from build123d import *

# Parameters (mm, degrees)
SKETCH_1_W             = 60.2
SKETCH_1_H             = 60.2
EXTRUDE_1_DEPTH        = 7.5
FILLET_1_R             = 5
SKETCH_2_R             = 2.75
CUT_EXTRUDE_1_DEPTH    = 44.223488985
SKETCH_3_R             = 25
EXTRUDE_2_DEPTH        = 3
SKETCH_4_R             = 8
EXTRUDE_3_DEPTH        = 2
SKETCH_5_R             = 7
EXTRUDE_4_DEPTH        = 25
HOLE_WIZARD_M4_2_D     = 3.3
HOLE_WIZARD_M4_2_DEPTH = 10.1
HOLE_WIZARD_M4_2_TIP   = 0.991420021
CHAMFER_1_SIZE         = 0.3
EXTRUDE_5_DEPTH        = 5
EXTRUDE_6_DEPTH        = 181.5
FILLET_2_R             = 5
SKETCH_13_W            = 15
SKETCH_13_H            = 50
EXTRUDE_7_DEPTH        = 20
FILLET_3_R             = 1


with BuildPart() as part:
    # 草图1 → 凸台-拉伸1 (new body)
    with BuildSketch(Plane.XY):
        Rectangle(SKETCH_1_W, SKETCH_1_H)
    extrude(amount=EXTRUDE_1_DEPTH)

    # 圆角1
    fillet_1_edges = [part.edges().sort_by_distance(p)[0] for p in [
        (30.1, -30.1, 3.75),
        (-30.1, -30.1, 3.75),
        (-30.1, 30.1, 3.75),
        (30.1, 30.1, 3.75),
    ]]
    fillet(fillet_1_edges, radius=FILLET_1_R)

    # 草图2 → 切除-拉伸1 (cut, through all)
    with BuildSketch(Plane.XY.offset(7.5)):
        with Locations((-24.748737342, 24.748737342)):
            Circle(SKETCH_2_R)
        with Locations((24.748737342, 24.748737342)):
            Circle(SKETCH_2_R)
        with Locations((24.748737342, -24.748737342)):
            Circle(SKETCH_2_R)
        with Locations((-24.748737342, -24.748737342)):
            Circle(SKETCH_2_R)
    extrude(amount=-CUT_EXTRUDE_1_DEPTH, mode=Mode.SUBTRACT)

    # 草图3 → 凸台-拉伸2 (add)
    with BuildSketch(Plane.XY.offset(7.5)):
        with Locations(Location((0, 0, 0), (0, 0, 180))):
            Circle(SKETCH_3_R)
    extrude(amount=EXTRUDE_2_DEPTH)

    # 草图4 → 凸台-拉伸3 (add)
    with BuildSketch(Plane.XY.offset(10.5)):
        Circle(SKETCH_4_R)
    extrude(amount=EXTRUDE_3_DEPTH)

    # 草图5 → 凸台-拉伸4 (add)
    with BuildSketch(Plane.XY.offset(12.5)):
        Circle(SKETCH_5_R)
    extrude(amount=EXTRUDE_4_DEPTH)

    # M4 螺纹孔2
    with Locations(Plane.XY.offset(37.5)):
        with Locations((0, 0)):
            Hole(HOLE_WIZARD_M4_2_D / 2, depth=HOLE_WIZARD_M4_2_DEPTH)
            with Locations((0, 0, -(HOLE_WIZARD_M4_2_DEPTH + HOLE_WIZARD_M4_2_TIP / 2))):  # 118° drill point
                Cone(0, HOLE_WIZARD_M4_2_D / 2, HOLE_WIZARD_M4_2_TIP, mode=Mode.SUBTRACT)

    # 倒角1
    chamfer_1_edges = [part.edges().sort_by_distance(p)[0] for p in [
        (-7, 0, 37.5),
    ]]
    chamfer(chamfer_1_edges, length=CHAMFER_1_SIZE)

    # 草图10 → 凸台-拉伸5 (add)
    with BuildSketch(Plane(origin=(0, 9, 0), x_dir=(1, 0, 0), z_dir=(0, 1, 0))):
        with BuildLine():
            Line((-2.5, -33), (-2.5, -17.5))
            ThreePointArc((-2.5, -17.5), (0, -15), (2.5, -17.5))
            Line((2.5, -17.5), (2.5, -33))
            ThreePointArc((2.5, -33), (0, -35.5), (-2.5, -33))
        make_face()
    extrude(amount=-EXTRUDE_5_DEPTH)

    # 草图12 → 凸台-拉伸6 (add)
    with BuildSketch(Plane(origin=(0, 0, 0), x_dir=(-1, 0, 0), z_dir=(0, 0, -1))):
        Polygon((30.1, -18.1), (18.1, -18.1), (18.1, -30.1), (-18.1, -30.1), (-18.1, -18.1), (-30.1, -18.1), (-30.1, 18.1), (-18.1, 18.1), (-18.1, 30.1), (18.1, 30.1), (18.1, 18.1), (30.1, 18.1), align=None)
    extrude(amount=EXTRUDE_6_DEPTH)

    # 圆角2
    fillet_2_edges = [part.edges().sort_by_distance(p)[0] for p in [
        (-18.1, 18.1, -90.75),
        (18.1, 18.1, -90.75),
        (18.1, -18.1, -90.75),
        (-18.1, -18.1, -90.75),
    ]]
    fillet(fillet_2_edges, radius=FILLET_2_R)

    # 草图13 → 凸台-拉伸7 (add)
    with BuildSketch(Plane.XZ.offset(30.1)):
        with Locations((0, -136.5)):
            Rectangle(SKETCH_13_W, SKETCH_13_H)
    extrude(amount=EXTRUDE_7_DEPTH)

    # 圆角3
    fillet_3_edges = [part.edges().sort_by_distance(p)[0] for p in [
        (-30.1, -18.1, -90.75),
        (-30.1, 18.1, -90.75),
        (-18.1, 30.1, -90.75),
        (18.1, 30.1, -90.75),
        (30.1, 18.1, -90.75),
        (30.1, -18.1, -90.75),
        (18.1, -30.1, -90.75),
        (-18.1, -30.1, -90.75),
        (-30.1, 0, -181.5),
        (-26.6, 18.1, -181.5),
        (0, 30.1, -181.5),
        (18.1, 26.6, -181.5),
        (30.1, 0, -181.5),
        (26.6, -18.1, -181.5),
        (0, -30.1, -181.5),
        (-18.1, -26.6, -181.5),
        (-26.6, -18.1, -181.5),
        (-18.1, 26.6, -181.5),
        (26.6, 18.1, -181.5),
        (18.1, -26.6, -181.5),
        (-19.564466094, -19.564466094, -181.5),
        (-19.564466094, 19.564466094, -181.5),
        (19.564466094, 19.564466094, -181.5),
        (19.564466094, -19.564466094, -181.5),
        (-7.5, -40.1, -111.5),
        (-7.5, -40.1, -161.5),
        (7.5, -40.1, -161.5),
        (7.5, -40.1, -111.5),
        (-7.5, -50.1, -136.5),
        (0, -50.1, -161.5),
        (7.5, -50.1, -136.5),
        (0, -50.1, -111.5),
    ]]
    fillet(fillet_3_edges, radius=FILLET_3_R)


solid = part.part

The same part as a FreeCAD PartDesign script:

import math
import FreeCAD as App
import Part
import Sketcher

V = App.Vector
Q = App.Units.Quantity


def edges_at(feature, points):
    """Names of the edges that pass closest to the given points."""
    edges = feature.Shape.Edges
    near = lambda p: min(range(len(edges)), key=lambda i: edges[i].distToShape(Part.Vertex(*p))[0])
    return sorted({f"Edge{near(p) + 1}" for p in points})


def add_polygon(sketch, points):
    """Adds a closed chain of lines whose ends are joined by coincident constraints."""
    first, n = sketch.GeometryCount, len(points)
    for a, b in zip(points, points[1:] + points[:1]):
        sketch.addGeometry(Part.LineSegment(App.Vector(*a, 0), App.Vector(*b, 0)), False)
    for i in range(n):
        sketch.addConstraint(Sketcher.Constraint("Coincident", first + i, 2, first + (i + 1) % n, 1))

doc = App.newDocument("Part")
body = doc.addObject("PartDesign::Body", "Body")

sketch1 = body.newObject("Sketcher::SketchObject", "Sketch")
sketch1.AttachmentSupport = (doc.getObject("XY_Plane"), [""])
sketch1.MapMode = "FlatFace"
add_polygon(sketch1, [(-30.1, 30.1), (-30.1, -30.1), (30.1, -30.1), (30.1, 30.1)])
sketch1.addConstraint([
    Sketcher.Constraint("Vertical", 0),
    Sketcher.Constraint("Horizontal", 1),
    Sketcher.Constraint("Vertical", 2),
    Sketcher.Constraint("Horizontal", 3),
    Sketcher.Constraint("Symmetric", 0, 2, 2, 2, -1, 1),
    Sketcher.Constraint("Equal", 3, 0),
    Sketcher.Constraint("DistanceX", 1, 1, 1, 2, Q("60.2 mm")),
])
pad1 = body.newObject("PartDesign::Pad", "Pad")
pad1.Profile = sketch1
pad1.Length = 7.5
doc.recompute()

fillet = body.newObject("PartDesign::Fillet", "Fillet")
fillet.Base = (pad1, edges_at(pad1, [
    (30.1, -30.1, 3.75),
    (-30.1, -30.1, 3.75),
    (-30.1, 30.1, 3.75),
    (30.1, 30.1, 3.75),
]))
fillet.Radius = 5

sketch2 = body.newObject("Sketcher::SketchObject", "Sketch001")
sketch2.AttachmentSupport = (doc.getObject("XY_Plane"), [""])
sketch2.MapMode = "FlatFace"
sketch2.AttachmentOffset = App.Placement(V(0, 0, 7.5), App.Rotation())
sketch2.addGeometry([
    Part.Circle(V(-24.748737, 24.748737, 0), V(0, 0, 1), 2.75),
    Part.Circle(V(24.748737, 24.748737, 0), V(0, 0, 1), 2.75),
    Part.Circle(V(24.748737, -24.748737, 0), V(0, 0, 1), 2.75),
    Part.Circle(V(-24.748737, -24.748737, 0), V(0, 0, 1), 2.75),
], False)
sketch2.addConstraint([
    Sketcher.Constraint("Equal", 0, 1),
    Sketcher.Constraint("Equal", 1, 2),
    Sketcher.Constraint("Equal", 2, 3),
    Sketcher.Constraint("Symmetric", 0, 3, 2, 3, -1, 1),
    Sketcher.Constraint("Symmetric", 1, 3, 3, 3, -1, 1),
    Sketcher.Constraint("Symmetric", 0, 3, 1, 3, -2),
    Sketcher.Constraint("Diameter", 0, Q("5.5 mm")),
    Sketcher.Constraint("DistanceX", 0, 3, -1, 1, Q("24.748737 mm")),
    Sketcher.Constraint("DistanceY", -1, 1, 0, 3, Q("24.748737 mm")),
])
pocket1 = body.newObject("PartDesign::Pocket", "Pocket")
pocket1.Profile = sketch2
pocket1.Type = "ThroughAll"

sketch3 = body.newObject("Sketcher::SketchObject", "Sketch002")
sketch3.AttachmentSupport = (doc.getObject("XY_Plane"), [""])
sketch3.MapMode = "FlatFace"
sketch3.AttachmentOffset = App.Placement(V(0, 0, 7.5), App.Rotation())
sketch3.addGeometry(Part.Circle(V(0, 0, 0), V(0, 0, 1), 25), False)
sketch3.addConstraint([
    Sketcher.Constraint("Coincident", 0, 3, -1, 1),
    Sketcher.Constraint("Diameter", 0, Q("50 mm")),
])
pad2 = body.newObject("PartDesign::Pad", "Pad001")
pad2.Profile = sketch3
pad2.Length = 3

sketch4 = body.newObject("Sketcher::SketchObject", "Sketch003")
sketch4.AttachmentSupport = (doc.getObject("XY_Plane"), [""])
sketch4.MapMode = "FlatFace"
sketch4.AttachmentOffset = App.Placement(V(0, 0, 10.5), App.Rotation())
sketch4.addGeometry(Part.Circle(V(0, 0, 0), V(0, 0, 1), 8), False)
sketch4.addConstraint([
    Sketcher.Constraint("Coincident", 0, 3, -1, 1),
    Sketcher.Constraint("Diameter", 0, Q("16 mm")),
])
pad3 = body.newObject("PartDesign::Pad", "Pad002")
pad3.Profile = sketch4
pad3.Length = 2

sketch5 = body.newObject("Sketcher::SketchObject", "Sketch004")
sketch5.AttachmentSupport = (doc.getObject("XY_Plane"), [""])
sketch5.MapMode = "FlatFace"
sketch5.AttachmentOffset = App.Placement(V(0, 0, 12.5), App.Rotation())
sketch5.addGeometry(Part.Circle(V(0, 0, 0), V(0, 0, 1), 7), False)
sketch5.addConstraint([
    Sketcher.Constraint("Coincident", 0, 3, -1, 1),
    Sketcher.Constraint("Diameter", 0, Q("14 mm")),
])
pad4 = body.newObject("PartDesign::Pad", "Pad003")
pad4.Profile = sketch5
pad4.Length = 25

sketch6 = body.newObject("Sketcher::SketchObject", "Sketch005")
sketch6.AttachmentSupport = (doc.getObject("XY_Plane"), [""])
sketch6.MapMode = "FlatFace"
sketch6.AttachmentOffset = App.Placement(V(0, 0, 37.5), App.Rotation())
sketch6.addGeometry(Part.Circle(V(0, 0, 0), V(0, 0, 1), 1.65), False)
sketch6.addConstraint([
    Sketcher.Constraint("Coincident", 0, 3, -1, 1),
    Sketcher.Constraint("Diameter", 0, Q("3.3 mm")),
])
doc.recompute()
hole = body.newObject("PartDesign::Hole", "Hole")
hole.Profile = sketch6
hole.ThreadType = "None"
hole.Diameter = 3.3
hole.DepthType = "Dimension"
hole.Depth = 10.1
hole.DrillPoint = "Angled"
hole.DrillPointAngle = 118
doc.recompute()

chamfer = body.newObject("PartDesign::Chamfer", "Chamfer")
chamfer.Base = (hole, edges_at(hole, [(-7, 0, 37.5)]))
chamfer.Size = 0.3

sketch7 = body.newObject("Sketcher::SketchObject", "Sketch006")
sketch7.AttachmentSupport = (doc.getObject("XZ_Plane"), [""])
sketch7.MapMode = "FlatFace"
sketch7.AttachmentOffset = App.Placement(V(0, 0, -9), App.Rotation())
sketch7.addGeometry([
    Part.LineSegment(V(-2.5, 17.5, 0), V(-2.5, 33, 0)),
    Part.ArcOfCircle(Part.Circle(V(0, 33, 0), V(0, 0, 1), 2.5), math.radians(0), math.radians(180)),
    Part.LineSegment(V(2.5, 33, 0), V(2.5, 17.5, 0)),
    Part.ArcOfCircle(Part.Circle(V(0, 17.5, 0), V(0, 0, 1), 2.5), math.radians(180), math.radians(360)),
], False)
sketch7.addConstraint([
    Sketcher.Constraint("Tangent", 0, 2, 1, 2),
    Sketcher.Constraint("Tangent", 1, 1, 2, 1),
    Sketcher.Constraint("Tangent", 2, 2, 3, 2),
    Sketcher.Constraint("Tangent", 3, 1, 0, 1),
    Sketcher.Constraint("Vertical", 0),
    Sketcher.Constraint("Vertical", 2),
    Sketcher.Constraint("PointOnObject", 1, 3, -2),
    Sketcher.Constraint("Radius", 1, Q("2.5 mm")),
    Sketcher.Constraint("DistanceY", 0, 1, 0, 2, Q("15.5 mm")),
    Sketcher.Constraint("DistanceY", -1, 1, 1, 3, Q("33 mm")),
])
pad5 = body.newObject("PartDesign::Pad", "Pad004")
pad5.Profile = sketch7
pad5.Length = 5

sketch8 = body.newObject("Sketcher::SketchObject", "Sketch007")
sketch8.AttachmentSupport = (doc.getObject("XY_Plane"), [""])
sketch8.MapMode = "FlatFace"
add_polygon(sketch8, [(-18.1, -18.1), (-30.1, -18.1), (-30.1, 18.1), (-18.1, 18.1), (-18.1, 30.1), (18.1, 30.1), (18.1, 18.1), (30.1, 18.1), (30.1, -18.1), (18.1, -18.1), (18.1, -30.1), (-18.1, -30.1)])
sketch8.addConstraint([
    Sketcher.Constraint("Horizontal", 0),
    Sketcher.Constraint("Vertical", 1),
    Sketcher.Constraint("Horizontal", 2),
    Sketcher.Constraint("Vertical", 3),
    Sketcher.Constraint("Horizontal", 4),
    Sketcher.Constraint("Vertical", 5),
    Sketcher.Constraint("Horizontal", 6),
    Sketcher.Constraint("Vertical", 7),
    Sketcher.Constraint("Horizontal", 8),
    Sketcher.Constraint("Vertical", 9),
    Sketcher.Constraint("Horizontal", 10),
    Sketcher.Constraint("Vertical", 11),
    Sketcher.Constraint("Symmetric", 0, 2, 6, 2, -1, 1),
    Sketcher.Constraint("Symmetric", 2, 2, 8, 2, -1, 1),
    Sketcher.Constraint("Symmetric", 4, 2, 10, 2, -1, 1),
    Sketcher.Constraint("Symmetric", 2, 2, 5, 2, -2),
    Sketcher.Constraint("Equal", 10, 1),
    Sketcher.Constraint("Equal", 8, 3),
    Sketcher.Constraint("DistanceX", 0, 2, 0, 1, Q("12 mm")),
    Sketcher.Constraint("DistanceX", 4, 1, 4, 2, Q("36.2 mm")),
])
pad6 = body.newObject("PartDesign::Pad", "Pad005")
pad6.Profile = sketch8
pad6.Length = 181.5
pad6.Reversed = True
doc.recompute()

fillet2 = body.newObject("PartDesign::Fillet", "Fillet001")
fillet2.Base = (pad6, edges_at(pad6, [
    (-18.1, 18.1, -90.75),
    (18.1, 18.1, -90.75),
    (18.1, -18.1, -90.75),
    (-18.1, -18.1, -90.75),
]))
fillet2.Radius = 5

sketch9 = body.newObject("Sketcher::SketchObject", "Sketch008")
sketch9.AttachmentSupport = (doc.getObject("XZ_Plane"), [""])
sketch9.MapMode = "FlatFace"
sketch9.AttachmentOffset = App.Placement(V(0, 0, 30.1), App.Rotation())
add_polygon(sketch9, [(-7.5, -111.5), (-7.5, -161.5), (7.5, -161.5), (7.5, -111.5)])
sketch9.addConstraint([
    Sketcher.Constraint("Vertical", 0),
    Sketcher.Constraint("Horizontal", 1),
    Sketcher.Constraint("Vertical", 2),
    Sketcher.Constraint("Horizontal", 3),
    Sketcher.Constraint("DistanceX", 1, 1, 1, 2, Q("15 mm")),
    Sketcher.Constraint("DistanceY", 0, 2, 0, 1, Q("50 mm")),
    Sketcher.Constraint("DistanceX", 0, 2, -1, 1, Q("7.5 mm")),
    Sketcher.Constraint("DistanceY", 0, 2, -1, 1, Q("161.5 mm")),
])
pad7 = body.newObject("PartDesign::Pad", "Pad006")
pad7.Profile = sketch9
pad7.Length = 20
doc.recompute()

fillet3 = body.newObject("PartDesign::Fillet", "Fillet002")
fillet3.Base = (pad7, edges_at(pad7, [
    (-30.1, -18.1, -90.75),
    (-30.1, 18.1, -90.75),
    (-18.1, 30.1, -90.75),
    (18.1, 30.1, -90.75),
    (30.1, 18.1, -90.75),
    (30.1, -18.1, -90.75),
    (18.1, -30.1, -90.75),
    (-18.1, -30.1, -90.75),
    (-30.1, 0, -181.5),
    (-26.6, 18.1, -181.5),
    (0, 30.1, -181.5),
    (18.1, 26.6, -181.5),
    (30.1, 0, -181.5),
    (26.6, -18.1, -181.5),
    (0, -30.1, -181.5),
    (-18.1, -26.6, -181.5),
    (-26.6, -18.1, -181.5),
    (-18.1, 26.6, -181.5),
    (26.6, 18.1, -181.5),
    (18.1, -26.6, -181.5),
    (-19.564, -19.564, -181.5),
    (-19.564, 19.564, -181.5),
    (19.564, 19.564, -181.5),
    (19.564, -19.564, -181.5),
    (-7.5, -40.1, -111.5),
    (-7.5, -40.1, -161.5),
    (7.5, -40.1, -161.5),
    (7.5, -40.1, -111.5),
    (-7.5, -50.1, -136.5),
    (0, -50.1, -161.5),
    (7.5, -50.1, -136.5),
    (0, -50.1, -111.5),
]))
fillet3.Radius = 1

doc.recompute()
